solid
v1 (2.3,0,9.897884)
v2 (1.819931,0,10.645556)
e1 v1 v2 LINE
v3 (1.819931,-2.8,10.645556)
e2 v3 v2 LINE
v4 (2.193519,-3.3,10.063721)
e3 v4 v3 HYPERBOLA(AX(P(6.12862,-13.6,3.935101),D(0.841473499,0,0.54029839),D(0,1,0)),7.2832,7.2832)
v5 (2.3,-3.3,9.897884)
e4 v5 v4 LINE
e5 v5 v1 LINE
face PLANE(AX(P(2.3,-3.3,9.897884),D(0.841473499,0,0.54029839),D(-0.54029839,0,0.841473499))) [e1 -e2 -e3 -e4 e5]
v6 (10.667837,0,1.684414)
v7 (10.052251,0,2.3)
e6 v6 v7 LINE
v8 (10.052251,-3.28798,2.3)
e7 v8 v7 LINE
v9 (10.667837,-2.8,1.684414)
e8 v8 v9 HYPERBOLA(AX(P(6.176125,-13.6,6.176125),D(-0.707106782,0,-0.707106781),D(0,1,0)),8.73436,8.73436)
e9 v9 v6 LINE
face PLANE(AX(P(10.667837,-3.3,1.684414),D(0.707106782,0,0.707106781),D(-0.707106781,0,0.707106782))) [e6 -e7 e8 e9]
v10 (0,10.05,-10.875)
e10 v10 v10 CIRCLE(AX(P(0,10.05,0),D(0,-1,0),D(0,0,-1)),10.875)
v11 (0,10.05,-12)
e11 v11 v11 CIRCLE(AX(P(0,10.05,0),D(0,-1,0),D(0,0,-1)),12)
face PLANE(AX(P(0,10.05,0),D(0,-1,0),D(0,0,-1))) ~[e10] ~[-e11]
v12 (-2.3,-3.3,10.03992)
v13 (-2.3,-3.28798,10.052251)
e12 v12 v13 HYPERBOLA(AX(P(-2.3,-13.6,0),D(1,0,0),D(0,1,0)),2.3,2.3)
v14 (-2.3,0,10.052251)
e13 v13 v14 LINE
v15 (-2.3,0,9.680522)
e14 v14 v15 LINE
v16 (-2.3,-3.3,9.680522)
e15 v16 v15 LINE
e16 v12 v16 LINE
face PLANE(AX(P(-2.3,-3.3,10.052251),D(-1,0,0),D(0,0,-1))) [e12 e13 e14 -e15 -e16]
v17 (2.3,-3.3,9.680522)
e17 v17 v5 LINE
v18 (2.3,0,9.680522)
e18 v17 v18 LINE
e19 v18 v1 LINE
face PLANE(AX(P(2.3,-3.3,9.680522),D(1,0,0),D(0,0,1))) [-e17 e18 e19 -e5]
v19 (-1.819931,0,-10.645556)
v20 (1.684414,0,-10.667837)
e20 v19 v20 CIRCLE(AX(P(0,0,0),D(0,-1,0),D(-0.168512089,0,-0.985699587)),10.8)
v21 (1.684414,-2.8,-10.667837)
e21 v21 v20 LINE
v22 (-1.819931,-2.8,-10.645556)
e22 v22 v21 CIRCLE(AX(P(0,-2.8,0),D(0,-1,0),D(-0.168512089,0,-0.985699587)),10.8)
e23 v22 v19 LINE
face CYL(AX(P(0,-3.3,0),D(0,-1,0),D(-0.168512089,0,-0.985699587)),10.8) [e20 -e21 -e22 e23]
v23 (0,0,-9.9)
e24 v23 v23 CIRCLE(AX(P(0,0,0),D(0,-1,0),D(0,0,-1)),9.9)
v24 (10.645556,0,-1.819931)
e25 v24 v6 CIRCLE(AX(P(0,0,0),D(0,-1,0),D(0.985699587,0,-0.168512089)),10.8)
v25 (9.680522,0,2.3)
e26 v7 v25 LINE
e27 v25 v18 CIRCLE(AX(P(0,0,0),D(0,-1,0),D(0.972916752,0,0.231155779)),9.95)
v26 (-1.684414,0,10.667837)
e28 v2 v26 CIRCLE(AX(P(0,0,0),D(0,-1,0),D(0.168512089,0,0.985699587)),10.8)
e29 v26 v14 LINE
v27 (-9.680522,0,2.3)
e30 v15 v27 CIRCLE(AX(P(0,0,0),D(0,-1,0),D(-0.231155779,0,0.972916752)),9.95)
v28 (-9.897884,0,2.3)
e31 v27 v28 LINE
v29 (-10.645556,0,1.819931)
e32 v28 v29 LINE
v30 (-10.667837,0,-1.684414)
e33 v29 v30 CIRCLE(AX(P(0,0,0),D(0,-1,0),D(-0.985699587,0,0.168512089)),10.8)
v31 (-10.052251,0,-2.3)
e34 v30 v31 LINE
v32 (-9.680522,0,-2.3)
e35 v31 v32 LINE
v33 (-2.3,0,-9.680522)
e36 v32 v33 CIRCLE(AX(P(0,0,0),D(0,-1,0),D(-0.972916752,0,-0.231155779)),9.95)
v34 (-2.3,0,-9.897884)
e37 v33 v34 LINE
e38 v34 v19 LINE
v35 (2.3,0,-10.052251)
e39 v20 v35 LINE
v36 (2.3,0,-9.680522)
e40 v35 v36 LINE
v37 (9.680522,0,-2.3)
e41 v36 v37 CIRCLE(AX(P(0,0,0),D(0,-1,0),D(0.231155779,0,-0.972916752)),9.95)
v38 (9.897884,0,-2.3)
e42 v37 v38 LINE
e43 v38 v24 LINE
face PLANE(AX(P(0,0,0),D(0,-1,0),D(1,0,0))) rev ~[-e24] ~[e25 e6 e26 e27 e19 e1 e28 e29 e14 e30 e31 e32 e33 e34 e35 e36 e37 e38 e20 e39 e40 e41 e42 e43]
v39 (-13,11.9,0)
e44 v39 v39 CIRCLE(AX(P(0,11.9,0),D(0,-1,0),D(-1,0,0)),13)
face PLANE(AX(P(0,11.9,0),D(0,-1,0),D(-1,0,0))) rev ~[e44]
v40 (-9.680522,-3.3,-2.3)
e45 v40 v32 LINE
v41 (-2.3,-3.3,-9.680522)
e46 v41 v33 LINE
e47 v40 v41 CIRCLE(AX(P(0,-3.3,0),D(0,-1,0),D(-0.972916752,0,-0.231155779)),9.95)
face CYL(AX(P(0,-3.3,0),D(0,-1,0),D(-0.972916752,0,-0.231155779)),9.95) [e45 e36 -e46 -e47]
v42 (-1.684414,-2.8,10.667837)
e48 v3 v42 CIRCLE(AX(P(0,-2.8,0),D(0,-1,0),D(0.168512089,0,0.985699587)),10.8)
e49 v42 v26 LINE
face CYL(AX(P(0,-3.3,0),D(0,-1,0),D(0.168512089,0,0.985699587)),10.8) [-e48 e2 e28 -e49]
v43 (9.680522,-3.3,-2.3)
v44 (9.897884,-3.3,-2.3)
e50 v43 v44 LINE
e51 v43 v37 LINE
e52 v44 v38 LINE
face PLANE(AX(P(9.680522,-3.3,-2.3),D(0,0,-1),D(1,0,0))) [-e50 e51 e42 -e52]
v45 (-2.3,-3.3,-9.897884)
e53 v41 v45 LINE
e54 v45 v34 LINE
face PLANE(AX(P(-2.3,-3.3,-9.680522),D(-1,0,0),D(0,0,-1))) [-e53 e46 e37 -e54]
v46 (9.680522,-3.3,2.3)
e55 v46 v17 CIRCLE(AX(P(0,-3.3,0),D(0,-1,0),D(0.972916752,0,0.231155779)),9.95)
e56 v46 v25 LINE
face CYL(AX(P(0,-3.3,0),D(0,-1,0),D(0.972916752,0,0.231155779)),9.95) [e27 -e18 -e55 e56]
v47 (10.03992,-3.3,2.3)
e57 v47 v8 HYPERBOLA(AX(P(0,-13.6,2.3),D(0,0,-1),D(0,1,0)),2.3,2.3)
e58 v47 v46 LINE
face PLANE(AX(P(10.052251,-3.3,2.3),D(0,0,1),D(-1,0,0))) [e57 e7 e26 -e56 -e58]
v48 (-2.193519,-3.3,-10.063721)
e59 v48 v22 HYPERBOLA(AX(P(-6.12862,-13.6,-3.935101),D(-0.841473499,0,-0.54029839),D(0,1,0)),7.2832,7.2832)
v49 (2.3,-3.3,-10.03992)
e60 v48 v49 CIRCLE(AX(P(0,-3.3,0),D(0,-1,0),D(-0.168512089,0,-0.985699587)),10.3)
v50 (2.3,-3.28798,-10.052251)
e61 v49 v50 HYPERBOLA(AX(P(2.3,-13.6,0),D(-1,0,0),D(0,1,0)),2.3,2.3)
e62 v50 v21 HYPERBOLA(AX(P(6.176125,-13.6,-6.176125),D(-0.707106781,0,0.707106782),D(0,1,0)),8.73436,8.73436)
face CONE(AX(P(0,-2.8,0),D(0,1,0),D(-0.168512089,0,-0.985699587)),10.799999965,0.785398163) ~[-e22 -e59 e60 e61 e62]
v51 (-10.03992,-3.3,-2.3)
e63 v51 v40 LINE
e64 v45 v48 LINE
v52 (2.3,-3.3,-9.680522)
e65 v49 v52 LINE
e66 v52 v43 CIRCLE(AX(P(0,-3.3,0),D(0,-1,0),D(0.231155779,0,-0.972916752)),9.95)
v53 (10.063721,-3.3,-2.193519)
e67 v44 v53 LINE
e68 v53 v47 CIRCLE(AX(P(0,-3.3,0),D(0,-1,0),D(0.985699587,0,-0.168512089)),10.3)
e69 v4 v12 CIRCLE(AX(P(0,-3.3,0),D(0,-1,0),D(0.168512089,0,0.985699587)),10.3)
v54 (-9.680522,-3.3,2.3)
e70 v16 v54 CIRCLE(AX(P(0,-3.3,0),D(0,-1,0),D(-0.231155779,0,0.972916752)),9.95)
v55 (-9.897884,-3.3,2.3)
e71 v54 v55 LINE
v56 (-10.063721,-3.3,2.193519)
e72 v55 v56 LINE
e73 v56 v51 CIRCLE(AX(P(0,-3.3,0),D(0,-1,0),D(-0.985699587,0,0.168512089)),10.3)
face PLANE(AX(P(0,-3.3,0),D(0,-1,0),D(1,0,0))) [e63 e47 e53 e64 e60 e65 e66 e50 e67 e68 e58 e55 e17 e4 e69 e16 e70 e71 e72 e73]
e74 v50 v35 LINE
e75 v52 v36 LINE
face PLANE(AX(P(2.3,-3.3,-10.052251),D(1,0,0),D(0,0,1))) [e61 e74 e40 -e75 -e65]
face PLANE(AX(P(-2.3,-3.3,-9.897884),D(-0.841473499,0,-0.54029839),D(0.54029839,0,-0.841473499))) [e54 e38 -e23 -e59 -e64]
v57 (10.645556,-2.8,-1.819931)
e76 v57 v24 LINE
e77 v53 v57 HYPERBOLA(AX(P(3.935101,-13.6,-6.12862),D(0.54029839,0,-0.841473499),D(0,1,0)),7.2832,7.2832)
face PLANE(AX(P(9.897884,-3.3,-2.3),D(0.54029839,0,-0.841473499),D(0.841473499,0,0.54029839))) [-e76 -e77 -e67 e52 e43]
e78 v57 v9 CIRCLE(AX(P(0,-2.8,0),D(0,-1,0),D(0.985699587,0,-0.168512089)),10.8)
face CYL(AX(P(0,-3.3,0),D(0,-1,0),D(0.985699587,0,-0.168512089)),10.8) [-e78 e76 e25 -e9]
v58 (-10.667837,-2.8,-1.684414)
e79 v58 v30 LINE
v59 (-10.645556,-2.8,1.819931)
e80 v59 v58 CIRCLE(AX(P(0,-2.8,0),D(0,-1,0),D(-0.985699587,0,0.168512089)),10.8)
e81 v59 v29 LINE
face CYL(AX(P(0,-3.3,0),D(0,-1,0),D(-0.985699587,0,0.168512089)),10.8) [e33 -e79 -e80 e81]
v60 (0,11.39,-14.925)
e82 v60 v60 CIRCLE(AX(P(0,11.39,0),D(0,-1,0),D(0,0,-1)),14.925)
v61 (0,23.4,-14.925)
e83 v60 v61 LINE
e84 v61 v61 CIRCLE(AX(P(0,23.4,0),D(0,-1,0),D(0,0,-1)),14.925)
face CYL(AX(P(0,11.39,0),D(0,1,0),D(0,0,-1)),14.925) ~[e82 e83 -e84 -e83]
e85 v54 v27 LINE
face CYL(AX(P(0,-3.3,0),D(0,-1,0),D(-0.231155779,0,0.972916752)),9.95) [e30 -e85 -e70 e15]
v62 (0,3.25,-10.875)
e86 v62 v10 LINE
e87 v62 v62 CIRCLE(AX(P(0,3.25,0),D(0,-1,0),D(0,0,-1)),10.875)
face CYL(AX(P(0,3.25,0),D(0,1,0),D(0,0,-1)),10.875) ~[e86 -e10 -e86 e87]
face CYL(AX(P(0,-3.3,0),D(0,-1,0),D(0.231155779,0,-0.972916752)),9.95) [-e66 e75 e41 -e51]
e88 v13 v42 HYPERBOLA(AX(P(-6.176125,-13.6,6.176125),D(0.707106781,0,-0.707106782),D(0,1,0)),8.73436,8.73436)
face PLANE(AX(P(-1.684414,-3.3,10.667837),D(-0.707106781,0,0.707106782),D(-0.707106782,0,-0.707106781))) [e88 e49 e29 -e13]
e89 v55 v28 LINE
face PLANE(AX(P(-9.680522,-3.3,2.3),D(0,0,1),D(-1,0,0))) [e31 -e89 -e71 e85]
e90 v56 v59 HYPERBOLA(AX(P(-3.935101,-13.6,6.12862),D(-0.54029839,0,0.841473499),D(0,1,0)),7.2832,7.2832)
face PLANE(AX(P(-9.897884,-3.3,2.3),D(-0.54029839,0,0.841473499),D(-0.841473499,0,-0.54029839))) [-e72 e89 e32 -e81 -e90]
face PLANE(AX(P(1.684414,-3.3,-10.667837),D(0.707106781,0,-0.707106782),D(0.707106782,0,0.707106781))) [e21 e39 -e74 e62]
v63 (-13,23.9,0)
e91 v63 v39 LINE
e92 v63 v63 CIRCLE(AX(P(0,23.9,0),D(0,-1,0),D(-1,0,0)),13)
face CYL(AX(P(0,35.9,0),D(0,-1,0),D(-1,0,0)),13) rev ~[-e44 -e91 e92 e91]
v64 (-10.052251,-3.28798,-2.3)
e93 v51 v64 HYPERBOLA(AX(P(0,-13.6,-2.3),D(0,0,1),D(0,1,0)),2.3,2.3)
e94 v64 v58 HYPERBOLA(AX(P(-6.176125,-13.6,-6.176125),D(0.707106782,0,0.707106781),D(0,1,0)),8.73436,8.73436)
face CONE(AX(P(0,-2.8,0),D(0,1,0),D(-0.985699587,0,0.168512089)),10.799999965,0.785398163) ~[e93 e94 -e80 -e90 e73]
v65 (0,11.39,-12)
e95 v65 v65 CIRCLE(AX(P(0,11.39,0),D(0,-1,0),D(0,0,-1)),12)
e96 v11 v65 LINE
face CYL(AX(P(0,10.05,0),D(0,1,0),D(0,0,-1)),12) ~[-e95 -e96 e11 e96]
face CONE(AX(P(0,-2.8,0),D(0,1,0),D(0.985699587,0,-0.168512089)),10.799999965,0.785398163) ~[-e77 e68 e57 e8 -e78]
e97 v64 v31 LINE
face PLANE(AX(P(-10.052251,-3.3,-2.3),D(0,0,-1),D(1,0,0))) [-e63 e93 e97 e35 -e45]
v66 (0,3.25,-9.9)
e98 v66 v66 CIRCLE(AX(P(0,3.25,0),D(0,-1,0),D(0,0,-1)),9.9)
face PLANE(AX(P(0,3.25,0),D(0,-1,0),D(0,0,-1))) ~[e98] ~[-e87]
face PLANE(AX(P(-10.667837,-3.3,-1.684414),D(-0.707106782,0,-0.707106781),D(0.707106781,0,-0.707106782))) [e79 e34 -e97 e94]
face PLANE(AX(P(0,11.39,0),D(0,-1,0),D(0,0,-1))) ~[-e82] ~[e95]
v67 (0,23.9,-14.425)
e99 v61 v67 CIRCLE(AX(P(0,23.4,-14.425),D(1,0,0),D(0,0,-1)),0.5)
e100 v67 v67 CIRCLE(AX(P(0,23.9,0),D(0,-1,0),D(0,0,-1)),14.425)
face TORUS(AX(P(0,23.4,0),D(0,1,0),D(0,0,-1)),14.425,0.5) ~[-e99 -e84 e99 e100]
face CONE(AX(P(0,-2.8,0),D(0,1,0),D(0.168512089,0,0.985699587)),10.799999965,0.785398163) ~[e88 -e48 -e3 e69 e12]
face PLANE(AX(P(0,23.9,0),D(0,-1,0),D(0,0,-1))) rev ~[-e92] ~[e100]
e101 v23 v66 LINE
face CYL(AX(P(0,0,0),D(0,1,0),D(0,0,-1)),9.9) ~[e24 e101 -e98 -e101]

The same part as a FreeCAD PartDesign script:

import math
import FreeCAD as App
import Part
import Sketcher
Q = App.Units.Quantity


def edges_at(feature, points):
    """Names of the edges that pass closest to the given points."""
    edges = feature.Shape.Edges
    near = lambda p: min(range(len(edges)), key=lambda i: edges[i].distToShape(Part.Vertex(*p))[0])
    return sorted({f"Edge{near(p) + 1}" for p in points})

doc = App.newDocument("Part")
body = doc.addObject("PartDesign::Body", "Body")

# Sketch on XZ plane
sketch1 = body.newObject("Sketcher::SketchObject", "Sketch")
sketch1.AttachmentSupport = (doc.getObject("XZ_Plane"), [""])
sketch1.MapMode = "FlatFace"
sketch1.AttachmentOffset = App.Placement(App.Vector(0, 0, 3.3), App.Rotation())
sketch1.addGeometry([
    Part.LineSegment(App.Vector(-2.3, 10.05, 0), App.Vector(-2.3, 9.68, 0)),  # 0
    Part.ArcOfCircle(Part.Circle(App.Vector(0, 0, 0), App.Vector(0, 0, 1), 9.95), math.radians(103), math.radians(167)),  # 1
    Part.LineSegment(App.Vector(-9.68, 2.3, 0), App.Vector(-9.9, 2.3, 0)),  # 2
    Part.LineSegment(App.Vector(-9.9, 2.3, 0), App.Vector(-10.65, 1.82, 0)),  # 3
    Part.ArcOfCircle(Part.Circle(App.Vector(0, 0, 0), App.Vector(0, 0, 1), 10.8), math.radians(170.3), math.radians(188.97)),  # 4
    Part.LineSegment(App.Vector(-10.67, -1.68, 0), App.Vector(-10.05, -2.3, 0)),  # 5
    Part.LineSegment(App.Vector(-10.05, -2.3, 0), App.Vector(-9.68, -2.3, 0)),  # 6
    Part.ArcOfCircle(Part.Circle(App.Vector(0, 0, 0), App.Vector(0, 0, 1), 9.95), math.radians(-167), math.radians(-103)),  # 7
    Part.LineSegment(App.Vector(-2.3, -9.68, 0), App.Vector(-2.3, -9.9, 0)),  # 8
    Part.LineSegment(App.Vector(-2.3, -9.9, 0), App.Vector(-1.82, -10.65, 0)),  # 9
    Part.ArcOfCircle(Part.Circle(App.Vector(0, 0, 0), App.Vector(0, 0, 1), 10.8), math.radians(-99.7), math.radians(-81.03)),  # 10
    Part.LineSegment(App.Vector(1.68, -10.67, 0), App.Vector(2.3, -10.05, 0)),  # 11
    Part.LineSegment(App.Vector(2.3, -10.05, 0), App.Vector(2.3, -9.68, 0)),  # 12
    Part.ArcOfCircle(Part.Circle(App.Vector(0, 0, 0), App.Vector(0, 0, 1), 9.95), math.radians(-77), math.radians(-13)),  # 13
    Part.LineSegment(App.Vector(9.68, -2.3, 0), App.Vector(9.9, -2.3, 0)),  # 14
    Part.LineSegment(App.Vector(9.9, -2.3, 0), App.Vector(10.65, -1.82, 0)),  # 15
    Part.ArcOfCircle(Part.Circle(App.Vector(0, 0, 0), App.Vector(0, 0, 1), 10.8), math.radians(-9.7), math.radians(8.97)),  # 16
    Part.LineSegment(App.Vector(10.67, 1.68, 0), App.Vector(10.05, 2.3, 0)),  # 17
    Part.LineSegment(App.Vector(10.05, 2.3, 0), App.Vector(9.68, 2.3, 0)),  # 18
    Part.ArcOfCircle(Part.Circle(App.Vector(0, 0, 0), App.Vector(0, 0, 1), 9.95), math.radians(13), math.radians(77)),  # 19
    Part.LineSegment(App.Vector(2.3, 9.68, 0), App.Vector(2.3, 9.9, 0)),  # 20
    Part.LineSegment(App.Vector(2.3, 9.9, 0), App.Vector(1.82, 10.65, 0)),  # 21
    Part.ArcOfCircle(Part.Circle(App.Vector(0, 0, 0), App.Vector(0, 0, 1), 10.8), math.radians(80.3), math.radians(98.97)),  # 22
    Part.LineSegment(App.Vector(-1.68, 10.67, 0), App.Vector(-2.3, 10.05, 0)),  # 23
], False)
sketch1.addConstraint([
    Sketcher.Constraint("Coincident", 0, 2, 1, 1),
    Sketcher.Constraint("Coincident", 1, 2, 2, 1),
    Sketcher.Constraint("Coincident", 2, 2, 3, 1),
    Sketcher.Constraint("Coincident", 3, 2, 4, 1),
    Sketcher.Constraint("Coincident", 4, 2, 5, 1),
    Sketcher.Constraint("Coincident", 5, 2, 6, 1),
    Sketcher.Constraint("Coincident", 6, 2, 7, 1),
    Sketcher.Constraint("Coincident", 7, 2, 8, 1),
    Sketcher.Constraint("Coincident", 8, 2, 9, 1),
    Sketcher.Constraint("Coincident", 9, 2, 10, 1),
    Sketcher.Constraint("Coincident", 10, 2, 11, 1),
    Sketcher.Constraint("Coincident", 11, 2, 12, 1),
    Sketcher.Constraint("Coincident", 12, 2, 13, 1),
    Sketcher.Constraint("Coincident", 13, 2, 14, 1),
    Sketcher.Constraint("Coincident", 14, 2, 15, 1),
    Sketcher.Constraint("Coincident", 15, 2, 16, 1),
    Sketcher.Constraint("Coincident", 16, 2, 17, 1),
    Sketcher.Constraint("Coincident", 17, 2, 18, 1),
    Sketcher.Constraint("Coincident", 18, 2, 19, 1),
    Sketcher.Constraint("Coincident", 19, 2, 20, 1),
    Sketcher.Constraint("Coincident", 20, 2, 21, 1),
    Sketcher.Constraint("Coincident", 21, 2, 22, 1),
    Sketcher.Constraint("Coincident", 22, 2, 23, 1),
    Sketcher.Constraint("Coincident", 23, 2, 0, 1),
    Sketcher.Constraint("Vertical", 0),
    Sketcher.Constraint("Horizontal", 2),
    Sketcher.Constraint("Horizontal", 6),
    Sketcher.Constraint("Vertical", 8),
    Sketcher.Constraint("Vertical", 12),
    Sketcher.Constraint("Horizontal", 14),
    Sketcher.Constraint("Horizontal", 18),
    Sketcher.Constraint("Vertical", 20),
    Sketcher.Constraint("Coincident", 1, 3, -1, 1),
    Sketcher.Constraint("Coincident", 4, 3, -1, 1),
    Sketcher.Constraint("Coincident", 7, 3, -1, 1),
    Sketcher.Constraint("Coincident", 10, 3, -1, 1),
    Sketcher.Constraint("Coincident", 13, 3, -1, 1),
    Sketcher.Constraint("Coincident", 16, 3, -1, 1),
    Sketcher.Constraint("Coincident", 19, 3, -1, 1),
    Sketcher.Constraint("Coincident", 22, 3, -1, 1),
    Sketcher.Constraint("Equal", 1, 7),
    Sketcher.Constraint("Equal", 4, 10),
    Sketcher.Constraint("Equal", 7, 13),
    Sketcher.Constraint("Equal", 10, 16),
    Sketcher.Constraint("Equal", 13, 19),
    Sketcher.Constraint("Equal", 16, 22),
    Sketcher.Constraint("Symmetric", 2, 2, 14, 2, -1, 1),
    Sketcher.Constraint("Symmetric", 5, 2, 17, 2, -1, 1),
    Sketcher.Constraint("Symmetric", 8, 2, 20, 2, -1, 1),
    Sketcher.Constraint("Symmetric", 11, 2, 23, 2, -1, 1),
    Sketcher.Constraint("Perpendicular", 3, 9),
    Sketcher.Constraint("Perpendicular", 5, 11),
    Sketcher.Constraint("Perpendicular", 9, 15),
    Sketcher.Constraint("Perpendicular", 11, 17),
    Sketcher.Constraint("Perpendicular", 15, 21),
    Sketcher.Constraint("Perpendicular", 17, 23),
    Sketcher.Constraint("Horizontal", 7, 2, 12, 2),
    Sketcher.Constraint("Horizontal", 6, 2, 13, 2),
    Sketcher.Constraint("Equal", 18, 0),
    Sketcher.Constraint("Equal", 14, 8),
    Sketcher.Constraint("Equal", 3, 9),
    Sketcher.Constraint("Radius", 4, Q("10.8 mm")),
    Sketcher.Constraint("Angle", 5, Q("-45 deg")),
    Sketcher.Constraint("Radius", 1, Q("9.95 mm")),
    Sketcher.Constraint("DistanceX", 0, 2, -1, 1, Q("2.3 mm")),
    Sketcher.Constraint("DistanceX", 6, 1, 6, 2, Q("0.371729 mm")),
    Sketcher.Constraint("DistanceX", 2, 2, 2, 1, Q("0.217362 mm")),
    Sketcher.Constraint("DistanceY", -1, 1, 3, 2, Q("1.819931 mm")),
])
pad1 = body.newObject("PartDesign::Pad", "Pad")
pad1.Profile = sketch1
pad1.Length = 3.3
pad1.Reversed = True

# Sketch on XY plane
sketch2 = body.newObject("Sketcher::SketchObject", "Sketch001")
sketch2.AttachmentSupport = (doc.getObject("XY_Plane"), [""])
sketch2.MapMode = "FlatFace"
sketch2.addGeometry([
    Part.LineSegment(App.Vector(14.9, 23.9, 0), App.Vector(0, 23.9, 0)),  # 0
    Part.LineSegment(App.Vector(0, 23.9, 0), App.Vector(0, 0, 0)),  # 1
    Part.LineSegment(App.Vector(0, 0, 0), App.Vector(9.9, 0, 0)),  # 2
    Part.LineSegment(App.Vector(9.9, 0, 0), App.Vector(9.9, 3.2, 0)),  # 3
    Part.LineSegment(App.Vector(9.9, 3.2, 0), App.Vector(10.9, 3.2, 0)),  # 4
    Part.LineSegment(App.Vector(10.9, 3.2, 0), App.Vector(10.9, 10.1, 0)),  # 5
    Part.LineSegment(App.Vector(10.9, 10.1, 0), App.Vector(12, 10.1, 0)),  # 6
    Part.LineSegment(App.Vector(12, 10.1, 0), App.Vector(12, 11.4, 0)),  # 7
    Part.LineSegment(App.Vector(12, 11.4, 0), App.Vector(14.9, 11.4, 0)),  # 8
    Part.LineSegment(App.Vector(14.9, 11.4, 0), App.Vector(14.9, 23.9, 0)),  # 9
], False)
sketch2.addConstraint([
    Sketcher.Constraint("Coincident", 0, 2, 1, 1),
    Sketcher.Constraint("Coincident", 1, 2, 2, 1),
    Sketcher.Constraint("Coincident", 2, 2, 3, 1),
    Sketcher.Constraint("Coincident", 3, 2, 4, 1),
    Sketcher.Constraint("Coincident", 4, 2, 5, 1),
    Sketcher.Constraint("Coincident", 5, 2, 6, 1),
    Sketcher.Constraint("Coincident", 6, 2, 7, 1),
    Sketcher.Constraint("Coincident", 7, 2, 8, 1),
    Sketcher.Constraint("Coincident", 8, 2, 9, 1),
    Sketcher.Constraint("Coincident", 9, 2, 0, 1),
    Sketcher.Constraint("Horizontal", 0),
    Sketcher.Constraint("Vertical", 1),
    Sketcher.Constraint("Horizontal", 2),
    Sketcher.Constraint("Vertical", 3),
    Sketcher.Constraint("Horizontal", 4),
    Sketcher.Constraint("Vertical", 5),
    Sketcher.Constraint("Horizontal", 6),
    Sketcher.Constraint("Vertical", 7),
    Sketcher.Constraint("Horizontal", 8),
    Sketcher.Constraint("Vertical", 9),
    Sketcher.Constraint("Coincident", 1, 2, -1, 1),
    Sketcher.Constraint("DistanceX", 2, 1, 2, 2, Q("9.9 mm")),
    Sketcher.Constraint("DistanceY", 1, 2, 1, 1, Q("23.9 mm")),
    Sketcher.Constraint("DistanceY", 5, 1, 5, 2, Q("6.8 mm")),
    Sketcher.Constraint("DistanceX", -1, 1, 6, 2, Q("12 mm")),
    Sketcher.Constraint("DistanceY", 3, 1, 3, 2, Q("3.25 mm")),
    Sketcher.Constraint("DistanceY", 7, 1, 7, 2, Q("1.34 mm")),
    Sketcher.Constraint("DistanceX", 0, 2, 0, 1, Q("14.925 mm")),
    Sketcher.Constraint("DistanceX", 4, 1, 4, 2, Q("0.975 mm")),
])
revolution = body.newObject("PartDesign::Revolution", "Revolution")
revolution.Profile = sketch2
revolution.ReferenceAxis = (sketch2, ["V_Axis"])
revolution.Angle = 360

# Sketch on XZ plane
sketch3 = body.newObject("Sketcher::SketchObject", "Sketch002")
sketch3.AttachmentSupport = (doc.getObject("XZ_Plane"), [""])
sketch3.MapMode = "FlatFace"
sketch3.AttachmentOffset = App.Placement(App.Vector(0, 0, -23.9), App.Rotation())
sketch3.addGeometry(Part.Circle(App.Vector(0, 0, 0), App.Vector(0, 0, 1), 13), False)
sketch3.addConstraint([
    Sketcher.Constraint("Coincident", 0, 3, -1, 1),
    Sketcher.Constraint("Diameter", 0, Q("26 mm")),
])
doc.recompute()
hole = body.newObject("PartDesign::Hole", "Hole")
hole.Profile = sketch3
hole.ThreadType = "None"
hole.Diameter = 26
hole.DepthType = "Dimension"
hole.Depth = 12
hole.DrillPoint = "Flat"
hole.Reversed = True
doc.recompute()

chamfer = body.newObject("PartDesign::Chamfer", "Chamfer")
chamfer.Base = (hole, edges_at(hole, [
    (-10.8, -3.3, 0.069),
    (0.069, -3.3, 10.8),
    (-0.069, -3.3, -10.8),
    (10.8, -3.3, -0.069),
]))
chamfer.Size = 0.5
doc.recompute()

fillet = body.newObject("PartDesign::Fillet", "Fillet")
fillet.Base = (chamfer, edges_at(chamfer, [(0, 23.9, 14.925)]))
fillet.Radius = 0.5

doc.recompute()
